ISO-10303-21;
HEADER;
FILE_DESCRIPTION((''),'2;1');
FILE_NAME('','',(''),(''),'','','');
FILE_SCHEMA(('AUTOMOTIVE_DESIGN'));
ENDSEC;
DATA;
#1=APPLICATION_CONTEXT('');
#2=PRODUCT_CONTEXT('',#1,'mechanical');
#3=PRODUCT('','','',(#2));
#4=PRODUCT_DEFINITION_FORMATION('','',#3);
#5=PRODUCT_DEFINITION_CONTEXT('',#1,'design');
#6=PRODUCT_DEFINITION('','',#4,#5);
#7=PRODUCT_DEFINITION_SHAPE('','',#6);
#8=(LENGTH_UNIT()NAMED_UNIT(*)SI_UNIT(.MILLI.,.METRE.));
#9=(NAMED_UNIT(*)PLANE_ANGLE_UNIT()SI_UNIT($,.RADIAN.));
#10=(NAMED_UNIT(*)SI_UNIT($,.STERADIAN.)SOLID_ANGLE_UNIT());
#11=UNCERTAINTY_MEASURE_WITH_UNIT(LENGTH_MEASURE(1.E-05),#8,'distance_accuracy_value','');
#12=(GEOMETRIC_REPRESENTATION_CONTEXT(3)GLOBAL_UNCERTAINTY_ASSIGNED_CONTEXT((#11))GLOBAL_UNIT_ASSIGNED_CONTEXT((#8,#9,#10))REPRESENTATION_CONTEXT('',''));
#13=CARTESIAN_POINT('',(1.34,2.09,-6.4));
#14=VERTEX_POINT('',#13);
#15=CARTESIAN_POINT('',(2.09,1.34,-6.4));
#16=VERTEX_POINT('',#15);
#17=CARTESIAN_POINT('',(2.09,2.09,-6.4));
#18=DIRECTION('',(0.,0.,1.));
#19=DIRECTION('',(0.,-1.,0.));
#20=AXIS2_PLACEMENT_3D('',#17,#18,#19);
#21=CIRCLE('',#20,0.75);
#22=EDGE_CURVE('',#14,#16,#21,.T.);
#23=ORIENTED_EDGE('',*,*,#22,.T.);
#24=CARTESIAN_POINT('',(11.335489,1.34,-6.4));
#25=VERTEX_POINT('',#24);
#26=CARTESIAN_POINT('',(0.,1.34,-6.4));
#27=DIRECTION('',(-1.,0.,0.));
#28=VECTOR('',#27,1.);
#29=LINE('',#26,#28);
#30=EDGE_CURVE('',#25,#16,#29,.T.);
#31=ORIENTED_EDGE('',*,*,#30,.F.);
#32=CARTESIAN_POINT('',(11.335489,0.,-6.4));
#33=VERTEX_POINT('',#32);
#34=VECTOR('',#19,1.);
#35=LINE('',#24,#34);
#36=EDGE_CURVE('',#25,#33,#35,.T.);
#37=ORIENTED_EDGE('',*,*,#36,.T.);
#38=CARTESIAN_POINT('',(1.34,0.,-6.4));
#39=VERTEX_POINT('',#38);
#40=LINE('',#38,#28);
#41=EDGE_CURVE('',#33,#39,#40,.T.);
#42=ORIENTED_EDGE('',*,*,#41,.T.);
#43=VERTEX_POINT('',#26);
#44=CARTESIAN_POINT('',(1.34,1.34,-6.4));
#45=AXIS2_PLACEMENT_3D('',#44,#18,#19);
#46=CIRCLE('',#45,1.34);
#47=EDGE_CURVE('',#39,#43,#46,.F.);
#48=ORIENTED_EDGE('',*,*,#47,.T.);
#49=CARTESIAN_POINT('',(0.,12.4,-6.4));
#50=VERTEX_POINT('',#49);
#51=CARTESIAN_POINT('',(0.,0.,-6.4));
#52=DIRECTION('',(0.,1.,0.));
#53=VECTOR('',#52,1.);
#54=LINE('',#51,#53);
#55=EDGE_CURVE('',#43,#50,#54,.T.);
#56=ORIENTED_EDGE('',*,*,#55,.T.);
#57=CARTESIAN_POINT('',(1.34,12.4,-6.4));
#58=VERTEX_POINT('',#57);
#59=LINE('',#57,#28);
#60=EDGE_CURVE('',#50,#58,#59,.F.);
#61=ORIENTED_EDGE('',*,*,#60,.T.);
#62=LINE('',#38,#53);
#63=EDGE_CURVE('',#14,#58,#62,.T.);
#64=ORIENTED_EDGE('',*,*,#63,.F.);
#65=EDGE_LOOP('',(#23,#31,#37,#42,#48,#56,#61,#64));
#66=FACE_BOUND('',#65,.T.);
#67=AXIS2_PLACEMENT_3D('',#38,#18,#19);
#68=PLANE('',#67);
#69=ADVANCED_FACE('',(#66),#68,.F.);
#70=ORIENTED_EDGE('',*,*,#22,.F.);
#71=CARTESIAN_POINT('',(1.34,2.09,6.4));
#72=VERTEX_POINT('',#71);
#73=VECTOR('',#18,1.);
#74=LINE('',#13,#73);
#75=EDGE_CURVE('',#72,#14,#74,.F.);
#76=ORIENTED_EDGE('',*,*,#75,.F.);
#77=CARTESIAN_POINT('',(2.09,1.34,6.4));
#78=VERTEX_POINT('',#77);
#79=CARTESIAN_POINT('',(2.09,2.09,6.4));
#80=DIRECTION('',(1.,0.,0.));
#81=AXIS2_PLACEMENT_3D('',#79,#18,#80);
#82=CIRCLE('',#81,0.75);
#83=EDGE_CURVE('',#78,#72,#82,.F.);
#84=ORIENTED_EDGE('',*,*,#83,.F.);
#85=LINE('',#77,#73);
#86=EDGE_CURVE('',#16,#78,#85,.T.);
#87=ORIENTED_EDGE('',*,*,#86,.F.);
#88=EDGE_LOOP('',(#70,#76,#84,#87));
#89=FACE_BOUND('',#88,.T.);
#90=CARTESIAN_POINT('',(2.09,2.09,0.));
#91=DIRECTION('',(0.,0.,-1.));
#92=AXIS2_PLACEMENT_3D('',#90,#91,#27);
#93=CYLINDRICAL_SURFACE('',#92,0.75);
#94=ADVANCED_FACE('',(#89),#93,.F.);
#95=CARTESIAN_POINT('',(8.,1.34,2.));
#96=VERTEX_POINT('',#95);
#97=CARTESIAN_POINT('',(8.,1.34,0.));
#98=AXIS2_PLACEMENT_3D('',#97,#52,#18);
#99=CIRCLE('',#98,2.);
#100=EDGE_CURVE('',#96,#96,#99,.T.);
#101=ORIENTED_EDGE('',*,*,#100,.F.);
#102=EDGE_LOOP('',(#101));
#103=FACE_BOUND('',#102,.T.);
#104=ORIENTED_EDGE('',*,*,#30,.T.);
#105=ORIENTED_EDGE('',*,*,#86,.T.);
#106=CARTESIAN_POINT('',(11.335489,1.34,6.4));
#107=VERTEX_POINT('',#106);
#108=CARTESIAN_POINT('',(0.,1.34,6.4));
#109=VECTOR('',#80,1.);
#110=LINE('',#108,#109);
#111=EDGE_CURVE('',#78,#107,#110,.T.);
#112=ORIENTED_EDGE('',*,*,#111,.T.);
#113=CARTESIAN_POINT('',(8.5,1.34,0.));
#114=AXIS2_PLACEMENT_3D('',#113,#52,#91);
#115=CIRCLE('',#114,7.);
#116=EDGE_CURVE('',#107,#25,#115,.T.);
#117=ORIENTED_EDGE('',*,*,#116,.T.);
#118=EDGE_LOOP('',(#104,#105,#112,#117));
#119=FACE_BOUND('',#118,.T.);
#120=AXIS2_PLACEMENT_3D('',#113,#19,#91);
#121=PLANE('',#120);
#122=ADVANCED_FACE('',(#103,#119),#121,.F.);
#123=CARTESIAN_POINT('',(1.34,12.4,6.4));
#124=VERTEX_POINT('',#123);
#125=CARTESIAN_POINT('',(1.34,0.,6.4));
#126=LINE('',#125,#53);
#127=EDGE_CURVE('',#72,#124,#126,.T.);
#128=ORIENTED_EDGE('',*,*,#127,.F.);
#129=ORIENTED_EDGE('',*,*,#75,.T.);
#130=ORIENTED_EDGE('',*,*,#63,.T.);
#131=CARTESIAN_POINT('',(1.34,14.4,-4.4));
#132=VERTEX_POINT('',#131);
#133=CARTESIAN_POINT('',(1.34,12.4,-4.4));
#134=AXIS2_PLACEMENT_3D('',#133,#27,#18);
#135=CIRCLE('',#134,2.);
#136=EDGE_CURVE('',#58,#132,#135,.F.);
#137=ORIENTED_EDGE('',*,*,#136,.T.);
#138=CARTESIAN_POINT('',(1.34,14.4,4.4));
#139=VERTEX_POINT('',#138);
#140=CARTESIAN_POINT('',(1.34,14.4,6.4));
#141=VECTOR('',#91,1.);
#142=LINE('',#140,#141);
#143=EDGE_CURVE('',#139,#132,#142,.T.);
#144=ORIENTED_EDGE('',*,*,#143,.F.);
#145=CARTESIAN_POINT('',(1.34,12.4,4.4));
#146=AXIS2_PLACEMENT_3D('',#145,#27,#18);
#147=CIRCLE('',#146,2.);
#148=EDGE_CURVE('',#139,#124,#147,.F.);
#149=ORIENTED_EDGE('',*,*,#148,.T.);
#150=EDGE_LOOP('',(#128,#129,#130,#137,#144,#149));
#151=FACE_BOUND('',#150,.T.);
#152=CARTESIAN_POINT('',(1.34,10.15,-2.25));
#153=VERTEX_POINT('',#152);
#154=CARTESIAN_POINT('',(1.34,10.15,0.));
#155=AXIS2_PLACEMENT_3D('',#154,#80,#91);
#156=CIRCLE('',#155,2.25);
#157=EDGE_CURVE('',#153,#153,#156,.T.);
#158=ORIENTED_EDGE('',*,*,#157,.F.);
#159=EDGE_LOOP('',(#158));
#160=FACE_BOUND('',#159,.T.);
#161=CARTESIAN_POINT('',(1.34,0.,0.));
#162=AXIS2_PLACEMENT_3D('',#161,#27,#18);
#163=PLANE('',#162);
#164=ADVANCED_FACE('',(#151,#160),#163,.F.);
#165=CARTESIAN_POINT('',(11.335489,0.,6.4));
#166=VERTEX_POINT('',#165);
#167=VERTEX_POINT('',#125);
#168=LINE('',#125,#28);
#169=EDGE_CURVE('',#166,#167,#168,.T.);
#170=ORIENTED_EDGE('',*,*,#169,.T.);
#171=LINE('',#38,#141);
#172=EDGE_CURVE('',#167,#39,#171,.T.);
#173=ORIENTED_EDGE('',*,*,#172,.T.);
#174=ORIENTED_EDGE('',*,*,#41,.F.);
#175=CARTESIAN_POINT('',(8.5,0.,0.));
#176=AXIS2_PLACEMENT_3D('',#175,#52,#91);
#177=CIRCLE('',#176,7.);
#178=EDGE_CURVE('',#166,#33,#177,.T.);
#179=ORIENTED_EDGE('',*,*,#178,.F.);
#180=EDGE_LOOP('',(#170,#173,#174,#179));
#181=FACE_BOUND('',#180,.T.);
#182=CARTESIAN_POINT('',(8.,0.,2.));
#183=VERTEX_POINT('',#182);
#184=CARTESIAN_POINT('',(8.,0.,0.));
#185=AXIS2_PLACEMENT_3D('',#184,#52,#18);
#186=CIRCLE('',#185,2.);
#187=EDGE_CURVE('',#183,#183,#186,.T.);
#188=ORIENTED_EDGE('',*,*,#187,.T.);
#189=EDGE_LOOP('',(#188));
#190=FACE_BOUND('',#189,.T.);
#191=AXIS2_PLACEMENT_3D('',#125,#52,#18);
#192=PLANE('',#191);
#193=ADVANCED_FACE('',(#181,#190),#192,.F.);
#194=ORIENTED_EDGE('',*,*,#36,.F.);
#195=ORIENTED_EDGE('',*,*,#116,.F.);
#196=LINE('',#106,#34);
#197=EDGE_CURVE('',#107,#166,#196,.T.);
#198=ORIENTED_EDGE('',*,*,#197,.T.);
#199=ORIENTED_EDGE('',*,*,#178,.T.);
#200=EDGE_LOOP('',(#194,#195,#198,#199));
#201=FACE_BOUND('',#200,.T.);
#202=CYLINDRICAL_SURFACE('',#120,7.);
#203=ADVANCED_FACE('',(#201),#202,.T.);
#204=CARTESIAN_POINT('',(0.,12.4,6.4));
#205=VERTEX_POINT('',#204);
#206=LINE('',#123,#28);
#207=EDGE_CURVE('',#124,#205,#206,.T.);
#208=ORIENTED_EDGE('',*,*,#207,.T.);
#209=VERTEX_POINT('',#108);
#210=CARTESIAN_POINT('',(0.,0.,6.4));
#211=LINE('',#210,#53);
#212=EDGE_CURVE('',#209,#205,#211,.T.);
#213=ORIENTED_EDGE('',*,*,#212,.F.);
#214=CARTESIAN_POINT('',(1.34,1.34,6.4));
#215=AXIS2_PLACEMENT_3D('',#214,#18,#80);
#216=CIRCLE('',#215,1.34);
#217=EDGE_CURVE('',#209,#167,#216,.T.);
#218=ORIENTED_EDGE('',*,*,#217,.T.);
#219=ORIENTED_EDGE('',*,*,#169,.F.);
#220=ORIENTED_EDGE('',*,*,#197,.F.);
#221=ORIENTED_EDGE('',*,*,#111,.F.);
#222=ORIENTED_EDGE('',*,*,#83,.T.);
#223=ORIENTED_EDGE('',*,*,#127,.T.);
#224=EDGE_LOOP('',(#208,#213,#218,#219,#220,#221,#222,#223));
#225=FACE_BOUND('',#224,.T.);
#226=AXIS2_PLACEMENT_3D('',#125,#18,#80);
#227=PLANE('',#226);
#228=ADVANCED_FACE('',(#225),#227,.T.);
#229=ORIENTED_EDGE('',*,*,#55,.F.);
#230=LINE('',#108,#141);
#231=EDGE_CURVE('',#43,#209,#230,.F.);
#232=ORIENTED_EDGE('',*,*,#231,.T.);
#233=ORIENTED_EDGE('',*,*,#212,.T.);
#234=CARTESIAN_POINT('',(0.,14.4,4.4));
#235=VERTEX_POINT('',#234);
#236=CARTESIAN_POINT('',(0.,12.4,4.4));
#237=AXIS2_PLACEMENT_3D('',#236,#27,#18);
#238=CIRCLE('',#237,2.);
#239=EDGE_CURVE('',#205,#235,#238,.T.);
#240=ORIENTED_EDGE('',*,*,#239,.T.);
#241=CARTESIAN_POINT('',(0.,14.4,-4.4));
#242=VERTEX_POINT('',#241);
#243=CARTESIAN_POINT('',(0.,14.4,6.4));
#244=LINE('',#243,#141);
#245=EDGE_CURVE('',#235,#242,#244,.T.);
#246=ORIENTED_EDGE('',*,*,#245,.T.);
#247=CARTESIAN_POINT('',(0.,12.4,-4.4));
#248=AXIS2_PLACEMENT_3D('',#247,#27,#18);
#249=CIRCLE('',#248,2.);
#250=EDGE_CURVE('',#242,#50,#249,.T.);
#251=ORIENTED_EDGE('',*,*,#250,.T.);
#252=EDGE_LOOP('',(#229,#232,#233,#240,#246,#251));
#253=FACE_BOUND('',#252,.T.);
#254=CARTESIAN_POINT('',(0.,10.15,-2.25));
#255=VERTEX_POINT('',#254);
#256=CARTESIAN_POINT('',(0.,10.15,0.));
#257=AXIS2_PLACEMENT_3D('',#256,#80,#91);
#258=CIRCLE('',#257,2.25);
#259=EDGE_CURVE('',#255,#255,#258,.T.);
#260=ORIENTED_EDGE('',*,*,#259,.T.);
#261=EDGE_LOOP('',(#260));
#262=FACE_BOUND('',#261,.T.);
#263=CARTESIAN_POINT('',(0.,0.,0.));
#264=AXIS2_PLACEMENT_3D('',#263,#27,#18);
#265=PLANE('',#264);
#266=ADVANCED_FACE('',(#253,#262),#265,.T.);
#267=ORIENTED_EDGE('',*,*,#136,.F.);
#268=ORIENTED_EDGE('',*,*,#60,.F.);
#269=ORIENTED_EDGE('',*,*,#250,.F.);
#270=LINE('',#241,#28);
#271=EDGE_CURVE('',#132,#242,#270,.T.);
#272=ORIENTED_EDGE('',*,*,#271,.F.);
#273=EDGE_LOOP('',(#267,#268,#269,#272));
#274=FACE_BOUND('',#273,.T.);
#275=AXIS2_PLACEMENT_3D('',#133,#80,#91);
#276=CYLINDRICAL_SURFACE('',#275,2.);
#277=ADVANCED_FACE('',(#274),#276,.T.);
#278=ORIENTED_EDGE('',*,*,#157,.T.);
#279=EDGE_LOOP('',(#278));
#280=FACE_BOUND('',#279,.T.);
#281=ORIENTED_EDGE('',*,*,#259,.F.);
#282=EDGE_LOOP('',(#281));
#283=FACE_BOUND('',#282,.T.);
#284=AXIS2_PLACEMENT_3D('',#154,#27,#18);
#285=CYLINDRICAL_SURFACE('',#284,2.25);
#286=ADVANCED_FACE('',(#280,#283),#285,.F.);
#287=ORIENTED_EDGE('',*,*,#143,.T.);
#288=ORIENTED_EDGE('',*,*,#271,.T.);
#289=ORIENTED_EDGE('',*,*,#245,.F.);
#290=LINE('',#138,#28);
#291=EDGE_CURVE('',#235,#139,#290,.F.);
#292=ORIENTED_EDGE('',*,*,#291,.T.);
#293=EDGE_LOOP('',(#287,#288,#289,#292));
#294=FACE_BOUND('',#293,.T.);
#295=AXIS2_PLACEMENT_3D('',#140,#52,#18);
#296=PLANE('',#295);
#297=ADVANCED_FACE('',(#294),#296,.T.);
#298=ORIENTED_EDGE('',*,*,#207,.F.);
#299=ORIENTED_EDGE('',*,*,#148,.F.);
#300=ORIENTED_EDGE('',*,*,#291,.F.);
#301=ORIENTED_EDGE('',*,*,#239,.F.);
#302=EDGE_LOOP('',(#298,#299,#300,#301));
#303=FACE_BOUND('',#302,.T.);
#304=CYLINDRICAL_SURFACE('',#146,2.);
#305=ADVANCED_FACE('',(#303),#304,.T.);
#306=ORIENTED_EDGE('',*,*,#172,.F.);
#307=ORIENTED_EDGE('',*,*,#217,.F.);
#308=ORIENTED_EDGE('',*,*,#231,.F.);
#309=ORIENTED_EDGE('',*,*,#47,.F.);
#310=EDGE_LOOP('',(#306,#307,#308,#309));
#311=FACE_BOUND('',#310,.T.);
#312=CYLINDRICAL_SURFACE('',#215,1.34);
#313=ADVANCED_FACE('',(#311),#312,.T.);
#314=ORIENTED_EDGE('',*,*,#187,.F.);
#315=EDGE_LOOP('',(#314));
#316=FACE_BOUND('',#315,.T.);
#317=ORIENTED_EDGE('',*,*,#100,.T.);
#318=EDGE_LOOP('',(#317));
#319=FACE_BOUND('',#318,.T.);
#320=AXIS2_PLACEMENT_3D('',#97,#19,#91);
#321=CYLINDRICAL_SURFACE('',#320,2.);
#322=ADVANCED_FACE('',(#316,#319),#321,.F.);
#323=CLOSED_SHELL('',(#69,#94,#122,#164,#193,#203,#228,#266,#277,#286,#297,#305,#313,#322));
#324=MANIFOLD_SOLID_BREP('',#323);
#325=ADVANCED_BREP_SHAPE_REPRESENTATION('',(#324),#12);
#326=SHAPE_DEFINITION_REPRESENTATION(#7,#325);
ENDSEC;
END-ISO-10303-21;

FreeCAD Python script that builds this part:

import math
import FreeCAD as App
import Part
import Sketcher

V = App.Vector


def edges_at(feature, points):
    """Names of the edges that pass closest to the given points."""
    edges = feature.Shape.Edges
    near = lambda p: min(range(len(edges)), key=lambda i: edges[i].distToShape(Part.Vertex(*p))[0])
    return sorted({f"Edge{near(p) + 1}" for p in points})


def add_polygon(sketch, points):
    """Adds a closed chain of lines whose ends are joined by coincident constraints."""
    first, n = sketch.GeometryCount, len(points)
    for a, b in zip(points, points[1:] + points[:1]):
        sketch.addGeometry(Part.LineSegment(App.Vector(*a, 0), App.Vector(*b, 0)), False)
    for i in range(n):
        sketch.addConstraint(Sketcher.Constraint("Coincident", first + i, 2, first + (i + 1) % n, 1))

doc = App.newDocument("Part")
body = doc.addObject("PartDesign::Body", "Body")

# Sketch on YZ plane
sketch1 = doc.addObject("Sketcher::SketchObject", "Sketch")
body.addObject(sketch1)
sketch1.AttachmentSupport = (doc.YZ_Plane, [""])
sketch1.MapMode = "FlatFace"
add_polygon(sketch1, [(14.4, 6.4), (0, 6.4), (0, -6.4), (14.4, -6.4)])  # lines 0-3
sketch1.addGeometry(Part.Circle(V(10.2, 0, 0), V(0, 0, 1), 2.2), False)  # 4
sketch1.addConstraint([
    Sketcher.Constraint("Horizontal", 0),
    Sketcher.Constraint("Vertical", 1),
    Sketcher.Constraint("Horizontal", 2),
    Sketcher.Constraint("Vertical", 3),
    Sketcher.Constraint("Symmetric", 0, 2, 1, 2, -1, 1),
    Sketcher.Constraint("PointOnObject", 4, 3, -1),
    Sketcher.Constraint("Diameter", 4, 4.5),
    Sketcher.Constraint("DistanceX", 0, 2, 0, 1, 14.4),
    Sketcher.Constraint("DistanceY", 1, 2, 1, 1, 12.8),
    Sketcher.Constraint("DistanceX", -1, 1, 4, 3, 10.15),
])
pad1 = doc.addObject("PartDesign::Pad", "Pad")
body.addObject(pad1)
pad1.Profile = sketch1
pad1.Length = 1.34

# Sketch on XZ plane
sketch2 = doc.addObject("Sketcher::SketchObject", "Sketch001")
body.addObject(sketch2)
sketch2.AttachmentSupport = (doc.XZ_Plane, [""])
sketch2.MapMode = "FlatFace"
sketch2.addGeometry([
    Part.LineSegment(V(11.3, -6.4, 0), V(0, -6.4, 0)),  # 0
    Part.LineSegment(V(0, -6.4, 0), V(0, 6.4, 0)),  # 1
    Part.LineSegment(V(0, 6.4, 0), V(11.3, 6.4, 0)),  # 2
    Part.ArcOfCircle(Part.Circle(V(8.5, 0, 0), V(0, 0, 1), 7), math.radians(-66), math.radians(66)),  # 3
    Part.Circle(V(8, 0, 0), V(0, 0, 1), 2),  # 4
], False)
sketch2.addConstraint([
    Sketcher.Constraint("Coincident", 0, 2, 1, 1),
    Sketcher.Constraint("Coincident", 1, 2, 2, 1),
    Sketcher.Constraint("Coincident", 2, 2, 3, 2),
    Sketcher.Constraint("Coincident", 3, 1, 0, 1),
    Sketcher.Constraint("Horizontal", 0),
    Sketcher.Constraint("Vertical", 1),
    Sketcher.Constraint("Horizontal", 2),
    Sketcher.Constraint("Symmetric", 0, 2, 1, 2, -1, 1),
    Sketcher.Constraint("PointOnObject", 3, 3, -1),
    Sketcher.Constraint("PointOnObject", 4, 3, -1),
    Sketcher.Constraint("Diameter", 4, 4.0),
    Sketcher.Constraint("Radius", 3, 7.0),
    Sketcher.Constraint("DistanceY", 1, 1, 1, 2, 12.8),
    Sketcher.Constraint("DistanceX", -1, 1, 4, 3, 8.0),
    Sketcher.Constraint("DistanceX", -1, 1, 3, 3, 8.5),
])
pad2 = doc.addObject("PartDesign::Pad", "Pad001")
body.addObject(pad2)
pad2.Profile = sketch2
pad2.Length = 1.34
pad2.Reversed = True
doc.recompute()

fillet = doc.addObject("PartDesign::Fillet", "Fillet")
body.addObject(fillet)
fillet.Base = (pad2, edges_at(pad2, [(0.67, 14.4, -6.4), (0.67, 14.4, 6.4)]))
fillet.Radius = 2
doc.recompute()

fillet2 = doc.addObject("PartDesign::Fillet", "Fillet001")
body.addObject(fillet2)
fillet2.Base = (fillet, edges_at(fillet, [(1.34, 1.34, 0)]))
fillet2.Radius = 0.75
doc.recompute()

fillet3 = doc.addObject("PartDesign::Fillet", "Fillet002")
body.addObject(fillet3)
fillet3.Base = (fillet2, edges_at(fillet2, [(0, 0, 0)]))
fillet3.Radius = 1.34

doc.recompute()
